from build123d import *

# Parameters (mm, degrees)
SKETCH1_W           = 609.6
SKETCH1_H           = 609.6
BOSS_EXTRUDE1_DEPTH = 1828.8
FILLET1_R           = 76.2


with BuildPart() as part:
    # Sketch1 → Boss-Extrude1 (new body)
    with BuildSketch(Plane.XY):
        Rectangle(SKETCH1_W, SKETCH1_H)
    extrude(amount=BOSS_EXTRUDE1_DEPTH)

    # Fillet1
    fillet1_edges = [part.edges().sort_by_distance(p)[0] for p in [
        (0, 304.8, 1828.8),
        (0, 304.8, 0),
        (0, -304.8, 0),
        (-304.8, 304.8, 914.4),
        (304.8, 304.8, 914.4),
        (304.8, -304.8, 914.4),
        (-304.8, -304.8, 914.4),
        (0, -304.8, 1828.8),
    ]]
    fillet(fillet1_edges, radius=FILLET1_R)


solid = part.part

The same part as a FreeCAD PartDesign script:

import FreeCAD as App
import Part
import Sketcher

V = App.Vector
Q = App.Units.Quantity


def edges_at(feature, points):
    """Names of the edges that pass closest to the given points."""
    edges = feature.Shape.Edges
    near = lambda p: min(range(len(edges)), key=lambda i: edges[i].distToShape(Part.Vertex(*p))[0])
    return sorted({f"Edge{near(p) + 1}" for p in points})


def add_polygon(sketch, points):
    """Adds a closed chain of lines whose ends are joined by coincident constraints."""
    first, n = sketch.GeometryCount, len(points)
    for a, b in zip(points, points[1:] + points[:1]):
        sketch.addGeometry(Part.LineSegment(App.Vector(*a, 0), App.Vector(*b, 0)), False)
    for i in range(n):
        sketch.addConstraint(Sketcher.Constraint("Coincident", first + i, 2, first + (i + 1) % n, 1))

doc = App.newDocument("Part")
body = doc.addObject("PartDesign::Body", "Body")

# Sketch on XY plane
sketch1 = body.newObject("Sketcher::SketchObject", "Sketch")
sketch1.AttachmentSupport = (doc.getObject("XY_Plane"), [""])
sketch1.MapMode = "FlatFace"
add_polygon(sketch1, [(-305, 305), (-305, -305), (305, -305), (305, 305)])  # lines 0-3
sketch1.addConstraint(Sketcher.Constraint("Vertical", 0))
sketch1.addConstraint(Sketcher.Constraint("Horizontal", 1))
sketch1.addConstraint(Sketcher.Constraint("Vertical", 2))
sketch1.addConstraint(Sketcher.Constraint("Horizontal", 3))
sketch1.addConstraint(Sketcher.Constraint("Symmetric", 0, 2, 2, 2, -1, 1))
sketch1.addConstraint(Sketcher.Constraint("Equal", 3, 0))
sketch1.addConstraint(Sketcher.Constraint("DistanceX", 1, 1, 1, 2, Q("24 in")))
pad1 = body.newObject("PartDesign::Pad", "Pad")
pad1.Profile = sketch1
pad1.Length = Q("72 in")
doc.recompute()

fillet = body.newObject("PartDesign::Fillet", "Fillet")
fillet.Base = (pad1, edges_at(pad1, [
    (0, 304.8, 1828.8),
    (0, 304.8, 0),
    (0, -304.8, 0),
    (-304.8, 304.8, 914.4),
    (304.8, 304.8, 914.4),
    (304.8, -304.8, 914.4),
    (-304.8, -304.8, 914.4),
    (0, -304.8, 1828.8),
]))
fillet.Radius = Q("3 in")

doc.recompute()
